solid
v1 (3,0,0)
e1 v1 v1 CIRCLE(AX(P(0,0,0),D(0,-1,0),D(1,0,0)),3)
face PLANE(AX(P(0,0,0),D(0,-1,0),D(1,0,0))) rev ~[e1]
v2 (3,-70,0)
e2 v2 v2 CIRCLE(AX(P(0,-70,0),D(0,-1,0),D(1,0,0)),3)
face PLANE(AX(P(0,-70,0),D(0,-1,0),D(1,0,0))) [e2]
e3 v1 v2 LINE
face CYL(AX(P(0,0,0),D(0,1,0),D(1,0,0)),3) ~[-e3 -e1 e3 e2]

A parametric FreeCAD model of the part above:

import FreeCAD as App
import Part
import Sketcher

V = App.Vector
Q = App.Units.Quantity

doc = App.newDocument("Part")
body = doc.addObject("PartDesign::Body", "Body")

sketch1 = body.newObject("Sketcher::SketchObject", "Sketch")
sketch1.AttachmentSupport = (doc.getObject("XZ_Plane"), [""])
sketch1.MapMode = "FlatFace"
sketch1.addGeometry(Part.Circle(V(0, 0, 0), V(0, 0, 1), 3), False)
sketch1.addConstraint(Sketcher.Constraint("Coincident", 0, 3, -1, 1))
sketch1.addConstraint(Sketcher.Constraint("Diameter", 0, Q("6 mm")))
pad1 = body.newObject("PartDesign::Pad", "Pad")
pad1.Profile = sketch1
pad1.Length = 70

doc.recompute()
